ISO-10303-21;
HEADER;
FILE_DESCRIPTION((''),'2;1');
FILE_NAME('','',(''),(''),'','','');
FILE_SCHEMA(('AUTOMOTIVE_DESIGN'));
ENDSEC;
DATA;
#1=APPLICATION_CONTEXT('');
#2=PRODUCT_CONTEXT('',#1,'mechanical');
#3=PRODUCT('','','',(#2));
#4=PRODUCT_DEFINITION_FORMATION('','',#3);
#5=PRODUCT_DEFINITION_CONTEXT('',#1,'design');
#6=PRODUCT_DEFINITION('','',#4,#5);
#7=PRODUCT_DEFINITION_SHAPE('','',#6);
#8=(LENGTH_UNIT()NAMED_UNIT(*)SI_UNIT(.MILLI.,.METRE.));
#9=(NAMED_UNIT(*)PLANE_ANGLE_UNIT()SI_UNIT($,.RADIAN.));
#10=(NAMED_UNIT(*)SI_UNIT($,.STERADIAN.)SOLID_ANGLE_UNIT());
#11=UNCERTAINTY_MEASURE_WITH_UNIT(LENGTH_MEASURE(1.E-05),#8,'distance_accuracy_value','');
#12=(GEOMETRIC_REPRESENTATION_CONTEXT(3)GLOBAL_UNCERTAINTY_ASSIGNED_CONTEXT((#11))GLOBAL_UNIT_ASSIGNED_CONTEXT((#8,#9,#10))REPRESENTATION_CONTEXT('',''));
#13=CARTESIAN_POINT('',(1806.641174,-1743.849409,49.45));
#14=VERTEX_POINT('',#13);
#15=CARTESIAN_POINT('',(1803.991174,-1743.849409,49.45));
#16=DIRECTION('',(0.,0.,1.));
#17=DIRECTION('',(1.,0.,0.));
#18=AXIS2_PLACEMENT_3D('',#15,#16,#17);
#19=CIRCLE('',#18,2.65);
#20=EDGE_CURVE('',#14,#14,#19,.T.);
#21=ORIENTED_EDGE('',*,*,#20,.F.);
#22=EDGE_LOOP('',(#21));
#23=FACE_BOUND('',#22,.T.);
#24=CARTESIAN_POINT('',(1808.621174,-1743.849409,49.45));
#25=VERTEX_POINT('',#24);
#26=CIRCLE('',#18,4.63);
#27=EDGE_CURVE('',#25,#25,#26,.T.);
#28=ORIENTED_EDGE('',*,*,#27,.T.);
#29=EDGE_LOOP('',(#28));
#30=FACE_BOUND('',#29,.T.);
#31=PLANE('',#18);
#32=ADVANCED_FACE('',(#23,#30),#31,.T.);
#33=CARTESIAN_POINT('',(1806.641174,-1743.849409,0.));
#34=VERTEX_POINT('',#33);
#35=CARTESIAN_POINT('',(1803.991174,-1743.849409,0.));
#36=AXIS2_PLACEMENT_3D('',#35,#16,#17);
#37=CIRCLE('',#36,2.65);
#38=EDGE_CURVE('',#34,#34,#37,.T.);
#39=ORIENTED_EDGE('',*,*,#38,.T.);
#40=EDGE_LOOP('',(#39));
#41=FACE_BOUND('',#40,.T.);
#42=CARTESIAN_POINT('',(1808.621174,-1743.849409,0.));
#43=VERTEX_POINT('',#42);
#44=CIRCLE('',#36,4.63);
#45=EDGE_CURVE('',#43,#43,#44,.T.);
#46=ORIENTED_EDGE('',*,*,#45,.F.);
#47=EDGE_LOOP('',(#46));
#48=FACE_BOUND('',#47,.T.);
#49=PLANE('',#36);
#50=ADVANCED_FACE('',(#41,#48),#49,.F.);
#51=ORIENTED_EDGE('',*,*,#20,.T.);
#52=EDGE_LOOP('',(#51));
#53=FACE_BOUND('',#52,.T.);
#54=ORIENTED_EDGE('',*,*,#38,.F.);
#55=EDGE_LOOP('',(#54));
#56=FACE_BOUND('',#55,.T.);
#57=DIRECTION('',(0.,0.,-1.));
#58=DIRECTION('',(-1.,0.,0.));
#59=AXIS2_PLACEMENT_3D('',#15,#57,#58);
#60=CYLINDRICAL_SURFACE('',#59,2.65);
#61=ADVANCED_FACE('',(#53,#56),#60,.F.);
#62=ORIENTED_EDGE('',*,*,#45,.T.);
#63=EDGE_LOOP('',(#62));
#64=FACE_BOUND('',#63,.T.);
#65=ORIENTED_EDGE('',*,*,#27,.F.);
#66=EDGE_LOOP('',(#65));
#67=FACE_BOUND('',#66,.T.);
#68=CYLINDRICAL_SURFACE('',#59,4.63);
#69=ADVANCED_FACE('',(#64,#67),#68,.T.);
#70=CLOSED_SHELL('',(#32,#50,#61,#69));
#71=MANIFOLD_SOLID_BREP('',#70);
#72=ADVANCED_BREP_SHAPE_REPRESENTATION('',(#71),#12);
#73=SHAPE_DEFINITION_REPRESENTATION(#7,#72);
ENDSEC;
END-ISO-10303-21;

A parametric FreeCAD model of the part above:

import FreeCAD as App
import Part
import Sketcher
from FreeCAD import Vector
Q = App.Units.Quantity

doc = App.newDocument("Part")
body = doc.addObject("PartDesign::Body", "Body")

sketch1 = body.newObject("Sketcher::SketchObject", "Sketch")
sketch1.AttachmentSupport = (doc.getObject("XY_Plane"), [""])
sketch1.MapMode = "FlatFace"
sketch1.addGeometry([
    Part.Circle(Vector(1804, -1743.8, 0), Vector(0, 0, 1), 4.6),
    Part.Circle(Vector(1804, -1743.8, 0), Vector(0, 0, 1), 2.6),
], False)
sketch1.addConstraint([
    Sketcher.Constraint("Coincident", 1, 3, 0, 3),
    Sketcher.Constraint("Diameter", 1, Q("5.3 mm")),
    Sketcher.Constraint("Diameter", 0, Q("9.26 mm")),
    Sketcher.Constraint("DistanceY", 0, 3, -1, 1, Q("1743.849409 mm")),
    Sketcher.Constraint("DistanceX", -1, 1, 0, 3, Q("1803.991174 mm")),
])
pad1 = body.newObject("PartDesign::Pad", "Pad")
pad1.Profile = sketch1
pad1.Length = 49.45

doc.recompute()
